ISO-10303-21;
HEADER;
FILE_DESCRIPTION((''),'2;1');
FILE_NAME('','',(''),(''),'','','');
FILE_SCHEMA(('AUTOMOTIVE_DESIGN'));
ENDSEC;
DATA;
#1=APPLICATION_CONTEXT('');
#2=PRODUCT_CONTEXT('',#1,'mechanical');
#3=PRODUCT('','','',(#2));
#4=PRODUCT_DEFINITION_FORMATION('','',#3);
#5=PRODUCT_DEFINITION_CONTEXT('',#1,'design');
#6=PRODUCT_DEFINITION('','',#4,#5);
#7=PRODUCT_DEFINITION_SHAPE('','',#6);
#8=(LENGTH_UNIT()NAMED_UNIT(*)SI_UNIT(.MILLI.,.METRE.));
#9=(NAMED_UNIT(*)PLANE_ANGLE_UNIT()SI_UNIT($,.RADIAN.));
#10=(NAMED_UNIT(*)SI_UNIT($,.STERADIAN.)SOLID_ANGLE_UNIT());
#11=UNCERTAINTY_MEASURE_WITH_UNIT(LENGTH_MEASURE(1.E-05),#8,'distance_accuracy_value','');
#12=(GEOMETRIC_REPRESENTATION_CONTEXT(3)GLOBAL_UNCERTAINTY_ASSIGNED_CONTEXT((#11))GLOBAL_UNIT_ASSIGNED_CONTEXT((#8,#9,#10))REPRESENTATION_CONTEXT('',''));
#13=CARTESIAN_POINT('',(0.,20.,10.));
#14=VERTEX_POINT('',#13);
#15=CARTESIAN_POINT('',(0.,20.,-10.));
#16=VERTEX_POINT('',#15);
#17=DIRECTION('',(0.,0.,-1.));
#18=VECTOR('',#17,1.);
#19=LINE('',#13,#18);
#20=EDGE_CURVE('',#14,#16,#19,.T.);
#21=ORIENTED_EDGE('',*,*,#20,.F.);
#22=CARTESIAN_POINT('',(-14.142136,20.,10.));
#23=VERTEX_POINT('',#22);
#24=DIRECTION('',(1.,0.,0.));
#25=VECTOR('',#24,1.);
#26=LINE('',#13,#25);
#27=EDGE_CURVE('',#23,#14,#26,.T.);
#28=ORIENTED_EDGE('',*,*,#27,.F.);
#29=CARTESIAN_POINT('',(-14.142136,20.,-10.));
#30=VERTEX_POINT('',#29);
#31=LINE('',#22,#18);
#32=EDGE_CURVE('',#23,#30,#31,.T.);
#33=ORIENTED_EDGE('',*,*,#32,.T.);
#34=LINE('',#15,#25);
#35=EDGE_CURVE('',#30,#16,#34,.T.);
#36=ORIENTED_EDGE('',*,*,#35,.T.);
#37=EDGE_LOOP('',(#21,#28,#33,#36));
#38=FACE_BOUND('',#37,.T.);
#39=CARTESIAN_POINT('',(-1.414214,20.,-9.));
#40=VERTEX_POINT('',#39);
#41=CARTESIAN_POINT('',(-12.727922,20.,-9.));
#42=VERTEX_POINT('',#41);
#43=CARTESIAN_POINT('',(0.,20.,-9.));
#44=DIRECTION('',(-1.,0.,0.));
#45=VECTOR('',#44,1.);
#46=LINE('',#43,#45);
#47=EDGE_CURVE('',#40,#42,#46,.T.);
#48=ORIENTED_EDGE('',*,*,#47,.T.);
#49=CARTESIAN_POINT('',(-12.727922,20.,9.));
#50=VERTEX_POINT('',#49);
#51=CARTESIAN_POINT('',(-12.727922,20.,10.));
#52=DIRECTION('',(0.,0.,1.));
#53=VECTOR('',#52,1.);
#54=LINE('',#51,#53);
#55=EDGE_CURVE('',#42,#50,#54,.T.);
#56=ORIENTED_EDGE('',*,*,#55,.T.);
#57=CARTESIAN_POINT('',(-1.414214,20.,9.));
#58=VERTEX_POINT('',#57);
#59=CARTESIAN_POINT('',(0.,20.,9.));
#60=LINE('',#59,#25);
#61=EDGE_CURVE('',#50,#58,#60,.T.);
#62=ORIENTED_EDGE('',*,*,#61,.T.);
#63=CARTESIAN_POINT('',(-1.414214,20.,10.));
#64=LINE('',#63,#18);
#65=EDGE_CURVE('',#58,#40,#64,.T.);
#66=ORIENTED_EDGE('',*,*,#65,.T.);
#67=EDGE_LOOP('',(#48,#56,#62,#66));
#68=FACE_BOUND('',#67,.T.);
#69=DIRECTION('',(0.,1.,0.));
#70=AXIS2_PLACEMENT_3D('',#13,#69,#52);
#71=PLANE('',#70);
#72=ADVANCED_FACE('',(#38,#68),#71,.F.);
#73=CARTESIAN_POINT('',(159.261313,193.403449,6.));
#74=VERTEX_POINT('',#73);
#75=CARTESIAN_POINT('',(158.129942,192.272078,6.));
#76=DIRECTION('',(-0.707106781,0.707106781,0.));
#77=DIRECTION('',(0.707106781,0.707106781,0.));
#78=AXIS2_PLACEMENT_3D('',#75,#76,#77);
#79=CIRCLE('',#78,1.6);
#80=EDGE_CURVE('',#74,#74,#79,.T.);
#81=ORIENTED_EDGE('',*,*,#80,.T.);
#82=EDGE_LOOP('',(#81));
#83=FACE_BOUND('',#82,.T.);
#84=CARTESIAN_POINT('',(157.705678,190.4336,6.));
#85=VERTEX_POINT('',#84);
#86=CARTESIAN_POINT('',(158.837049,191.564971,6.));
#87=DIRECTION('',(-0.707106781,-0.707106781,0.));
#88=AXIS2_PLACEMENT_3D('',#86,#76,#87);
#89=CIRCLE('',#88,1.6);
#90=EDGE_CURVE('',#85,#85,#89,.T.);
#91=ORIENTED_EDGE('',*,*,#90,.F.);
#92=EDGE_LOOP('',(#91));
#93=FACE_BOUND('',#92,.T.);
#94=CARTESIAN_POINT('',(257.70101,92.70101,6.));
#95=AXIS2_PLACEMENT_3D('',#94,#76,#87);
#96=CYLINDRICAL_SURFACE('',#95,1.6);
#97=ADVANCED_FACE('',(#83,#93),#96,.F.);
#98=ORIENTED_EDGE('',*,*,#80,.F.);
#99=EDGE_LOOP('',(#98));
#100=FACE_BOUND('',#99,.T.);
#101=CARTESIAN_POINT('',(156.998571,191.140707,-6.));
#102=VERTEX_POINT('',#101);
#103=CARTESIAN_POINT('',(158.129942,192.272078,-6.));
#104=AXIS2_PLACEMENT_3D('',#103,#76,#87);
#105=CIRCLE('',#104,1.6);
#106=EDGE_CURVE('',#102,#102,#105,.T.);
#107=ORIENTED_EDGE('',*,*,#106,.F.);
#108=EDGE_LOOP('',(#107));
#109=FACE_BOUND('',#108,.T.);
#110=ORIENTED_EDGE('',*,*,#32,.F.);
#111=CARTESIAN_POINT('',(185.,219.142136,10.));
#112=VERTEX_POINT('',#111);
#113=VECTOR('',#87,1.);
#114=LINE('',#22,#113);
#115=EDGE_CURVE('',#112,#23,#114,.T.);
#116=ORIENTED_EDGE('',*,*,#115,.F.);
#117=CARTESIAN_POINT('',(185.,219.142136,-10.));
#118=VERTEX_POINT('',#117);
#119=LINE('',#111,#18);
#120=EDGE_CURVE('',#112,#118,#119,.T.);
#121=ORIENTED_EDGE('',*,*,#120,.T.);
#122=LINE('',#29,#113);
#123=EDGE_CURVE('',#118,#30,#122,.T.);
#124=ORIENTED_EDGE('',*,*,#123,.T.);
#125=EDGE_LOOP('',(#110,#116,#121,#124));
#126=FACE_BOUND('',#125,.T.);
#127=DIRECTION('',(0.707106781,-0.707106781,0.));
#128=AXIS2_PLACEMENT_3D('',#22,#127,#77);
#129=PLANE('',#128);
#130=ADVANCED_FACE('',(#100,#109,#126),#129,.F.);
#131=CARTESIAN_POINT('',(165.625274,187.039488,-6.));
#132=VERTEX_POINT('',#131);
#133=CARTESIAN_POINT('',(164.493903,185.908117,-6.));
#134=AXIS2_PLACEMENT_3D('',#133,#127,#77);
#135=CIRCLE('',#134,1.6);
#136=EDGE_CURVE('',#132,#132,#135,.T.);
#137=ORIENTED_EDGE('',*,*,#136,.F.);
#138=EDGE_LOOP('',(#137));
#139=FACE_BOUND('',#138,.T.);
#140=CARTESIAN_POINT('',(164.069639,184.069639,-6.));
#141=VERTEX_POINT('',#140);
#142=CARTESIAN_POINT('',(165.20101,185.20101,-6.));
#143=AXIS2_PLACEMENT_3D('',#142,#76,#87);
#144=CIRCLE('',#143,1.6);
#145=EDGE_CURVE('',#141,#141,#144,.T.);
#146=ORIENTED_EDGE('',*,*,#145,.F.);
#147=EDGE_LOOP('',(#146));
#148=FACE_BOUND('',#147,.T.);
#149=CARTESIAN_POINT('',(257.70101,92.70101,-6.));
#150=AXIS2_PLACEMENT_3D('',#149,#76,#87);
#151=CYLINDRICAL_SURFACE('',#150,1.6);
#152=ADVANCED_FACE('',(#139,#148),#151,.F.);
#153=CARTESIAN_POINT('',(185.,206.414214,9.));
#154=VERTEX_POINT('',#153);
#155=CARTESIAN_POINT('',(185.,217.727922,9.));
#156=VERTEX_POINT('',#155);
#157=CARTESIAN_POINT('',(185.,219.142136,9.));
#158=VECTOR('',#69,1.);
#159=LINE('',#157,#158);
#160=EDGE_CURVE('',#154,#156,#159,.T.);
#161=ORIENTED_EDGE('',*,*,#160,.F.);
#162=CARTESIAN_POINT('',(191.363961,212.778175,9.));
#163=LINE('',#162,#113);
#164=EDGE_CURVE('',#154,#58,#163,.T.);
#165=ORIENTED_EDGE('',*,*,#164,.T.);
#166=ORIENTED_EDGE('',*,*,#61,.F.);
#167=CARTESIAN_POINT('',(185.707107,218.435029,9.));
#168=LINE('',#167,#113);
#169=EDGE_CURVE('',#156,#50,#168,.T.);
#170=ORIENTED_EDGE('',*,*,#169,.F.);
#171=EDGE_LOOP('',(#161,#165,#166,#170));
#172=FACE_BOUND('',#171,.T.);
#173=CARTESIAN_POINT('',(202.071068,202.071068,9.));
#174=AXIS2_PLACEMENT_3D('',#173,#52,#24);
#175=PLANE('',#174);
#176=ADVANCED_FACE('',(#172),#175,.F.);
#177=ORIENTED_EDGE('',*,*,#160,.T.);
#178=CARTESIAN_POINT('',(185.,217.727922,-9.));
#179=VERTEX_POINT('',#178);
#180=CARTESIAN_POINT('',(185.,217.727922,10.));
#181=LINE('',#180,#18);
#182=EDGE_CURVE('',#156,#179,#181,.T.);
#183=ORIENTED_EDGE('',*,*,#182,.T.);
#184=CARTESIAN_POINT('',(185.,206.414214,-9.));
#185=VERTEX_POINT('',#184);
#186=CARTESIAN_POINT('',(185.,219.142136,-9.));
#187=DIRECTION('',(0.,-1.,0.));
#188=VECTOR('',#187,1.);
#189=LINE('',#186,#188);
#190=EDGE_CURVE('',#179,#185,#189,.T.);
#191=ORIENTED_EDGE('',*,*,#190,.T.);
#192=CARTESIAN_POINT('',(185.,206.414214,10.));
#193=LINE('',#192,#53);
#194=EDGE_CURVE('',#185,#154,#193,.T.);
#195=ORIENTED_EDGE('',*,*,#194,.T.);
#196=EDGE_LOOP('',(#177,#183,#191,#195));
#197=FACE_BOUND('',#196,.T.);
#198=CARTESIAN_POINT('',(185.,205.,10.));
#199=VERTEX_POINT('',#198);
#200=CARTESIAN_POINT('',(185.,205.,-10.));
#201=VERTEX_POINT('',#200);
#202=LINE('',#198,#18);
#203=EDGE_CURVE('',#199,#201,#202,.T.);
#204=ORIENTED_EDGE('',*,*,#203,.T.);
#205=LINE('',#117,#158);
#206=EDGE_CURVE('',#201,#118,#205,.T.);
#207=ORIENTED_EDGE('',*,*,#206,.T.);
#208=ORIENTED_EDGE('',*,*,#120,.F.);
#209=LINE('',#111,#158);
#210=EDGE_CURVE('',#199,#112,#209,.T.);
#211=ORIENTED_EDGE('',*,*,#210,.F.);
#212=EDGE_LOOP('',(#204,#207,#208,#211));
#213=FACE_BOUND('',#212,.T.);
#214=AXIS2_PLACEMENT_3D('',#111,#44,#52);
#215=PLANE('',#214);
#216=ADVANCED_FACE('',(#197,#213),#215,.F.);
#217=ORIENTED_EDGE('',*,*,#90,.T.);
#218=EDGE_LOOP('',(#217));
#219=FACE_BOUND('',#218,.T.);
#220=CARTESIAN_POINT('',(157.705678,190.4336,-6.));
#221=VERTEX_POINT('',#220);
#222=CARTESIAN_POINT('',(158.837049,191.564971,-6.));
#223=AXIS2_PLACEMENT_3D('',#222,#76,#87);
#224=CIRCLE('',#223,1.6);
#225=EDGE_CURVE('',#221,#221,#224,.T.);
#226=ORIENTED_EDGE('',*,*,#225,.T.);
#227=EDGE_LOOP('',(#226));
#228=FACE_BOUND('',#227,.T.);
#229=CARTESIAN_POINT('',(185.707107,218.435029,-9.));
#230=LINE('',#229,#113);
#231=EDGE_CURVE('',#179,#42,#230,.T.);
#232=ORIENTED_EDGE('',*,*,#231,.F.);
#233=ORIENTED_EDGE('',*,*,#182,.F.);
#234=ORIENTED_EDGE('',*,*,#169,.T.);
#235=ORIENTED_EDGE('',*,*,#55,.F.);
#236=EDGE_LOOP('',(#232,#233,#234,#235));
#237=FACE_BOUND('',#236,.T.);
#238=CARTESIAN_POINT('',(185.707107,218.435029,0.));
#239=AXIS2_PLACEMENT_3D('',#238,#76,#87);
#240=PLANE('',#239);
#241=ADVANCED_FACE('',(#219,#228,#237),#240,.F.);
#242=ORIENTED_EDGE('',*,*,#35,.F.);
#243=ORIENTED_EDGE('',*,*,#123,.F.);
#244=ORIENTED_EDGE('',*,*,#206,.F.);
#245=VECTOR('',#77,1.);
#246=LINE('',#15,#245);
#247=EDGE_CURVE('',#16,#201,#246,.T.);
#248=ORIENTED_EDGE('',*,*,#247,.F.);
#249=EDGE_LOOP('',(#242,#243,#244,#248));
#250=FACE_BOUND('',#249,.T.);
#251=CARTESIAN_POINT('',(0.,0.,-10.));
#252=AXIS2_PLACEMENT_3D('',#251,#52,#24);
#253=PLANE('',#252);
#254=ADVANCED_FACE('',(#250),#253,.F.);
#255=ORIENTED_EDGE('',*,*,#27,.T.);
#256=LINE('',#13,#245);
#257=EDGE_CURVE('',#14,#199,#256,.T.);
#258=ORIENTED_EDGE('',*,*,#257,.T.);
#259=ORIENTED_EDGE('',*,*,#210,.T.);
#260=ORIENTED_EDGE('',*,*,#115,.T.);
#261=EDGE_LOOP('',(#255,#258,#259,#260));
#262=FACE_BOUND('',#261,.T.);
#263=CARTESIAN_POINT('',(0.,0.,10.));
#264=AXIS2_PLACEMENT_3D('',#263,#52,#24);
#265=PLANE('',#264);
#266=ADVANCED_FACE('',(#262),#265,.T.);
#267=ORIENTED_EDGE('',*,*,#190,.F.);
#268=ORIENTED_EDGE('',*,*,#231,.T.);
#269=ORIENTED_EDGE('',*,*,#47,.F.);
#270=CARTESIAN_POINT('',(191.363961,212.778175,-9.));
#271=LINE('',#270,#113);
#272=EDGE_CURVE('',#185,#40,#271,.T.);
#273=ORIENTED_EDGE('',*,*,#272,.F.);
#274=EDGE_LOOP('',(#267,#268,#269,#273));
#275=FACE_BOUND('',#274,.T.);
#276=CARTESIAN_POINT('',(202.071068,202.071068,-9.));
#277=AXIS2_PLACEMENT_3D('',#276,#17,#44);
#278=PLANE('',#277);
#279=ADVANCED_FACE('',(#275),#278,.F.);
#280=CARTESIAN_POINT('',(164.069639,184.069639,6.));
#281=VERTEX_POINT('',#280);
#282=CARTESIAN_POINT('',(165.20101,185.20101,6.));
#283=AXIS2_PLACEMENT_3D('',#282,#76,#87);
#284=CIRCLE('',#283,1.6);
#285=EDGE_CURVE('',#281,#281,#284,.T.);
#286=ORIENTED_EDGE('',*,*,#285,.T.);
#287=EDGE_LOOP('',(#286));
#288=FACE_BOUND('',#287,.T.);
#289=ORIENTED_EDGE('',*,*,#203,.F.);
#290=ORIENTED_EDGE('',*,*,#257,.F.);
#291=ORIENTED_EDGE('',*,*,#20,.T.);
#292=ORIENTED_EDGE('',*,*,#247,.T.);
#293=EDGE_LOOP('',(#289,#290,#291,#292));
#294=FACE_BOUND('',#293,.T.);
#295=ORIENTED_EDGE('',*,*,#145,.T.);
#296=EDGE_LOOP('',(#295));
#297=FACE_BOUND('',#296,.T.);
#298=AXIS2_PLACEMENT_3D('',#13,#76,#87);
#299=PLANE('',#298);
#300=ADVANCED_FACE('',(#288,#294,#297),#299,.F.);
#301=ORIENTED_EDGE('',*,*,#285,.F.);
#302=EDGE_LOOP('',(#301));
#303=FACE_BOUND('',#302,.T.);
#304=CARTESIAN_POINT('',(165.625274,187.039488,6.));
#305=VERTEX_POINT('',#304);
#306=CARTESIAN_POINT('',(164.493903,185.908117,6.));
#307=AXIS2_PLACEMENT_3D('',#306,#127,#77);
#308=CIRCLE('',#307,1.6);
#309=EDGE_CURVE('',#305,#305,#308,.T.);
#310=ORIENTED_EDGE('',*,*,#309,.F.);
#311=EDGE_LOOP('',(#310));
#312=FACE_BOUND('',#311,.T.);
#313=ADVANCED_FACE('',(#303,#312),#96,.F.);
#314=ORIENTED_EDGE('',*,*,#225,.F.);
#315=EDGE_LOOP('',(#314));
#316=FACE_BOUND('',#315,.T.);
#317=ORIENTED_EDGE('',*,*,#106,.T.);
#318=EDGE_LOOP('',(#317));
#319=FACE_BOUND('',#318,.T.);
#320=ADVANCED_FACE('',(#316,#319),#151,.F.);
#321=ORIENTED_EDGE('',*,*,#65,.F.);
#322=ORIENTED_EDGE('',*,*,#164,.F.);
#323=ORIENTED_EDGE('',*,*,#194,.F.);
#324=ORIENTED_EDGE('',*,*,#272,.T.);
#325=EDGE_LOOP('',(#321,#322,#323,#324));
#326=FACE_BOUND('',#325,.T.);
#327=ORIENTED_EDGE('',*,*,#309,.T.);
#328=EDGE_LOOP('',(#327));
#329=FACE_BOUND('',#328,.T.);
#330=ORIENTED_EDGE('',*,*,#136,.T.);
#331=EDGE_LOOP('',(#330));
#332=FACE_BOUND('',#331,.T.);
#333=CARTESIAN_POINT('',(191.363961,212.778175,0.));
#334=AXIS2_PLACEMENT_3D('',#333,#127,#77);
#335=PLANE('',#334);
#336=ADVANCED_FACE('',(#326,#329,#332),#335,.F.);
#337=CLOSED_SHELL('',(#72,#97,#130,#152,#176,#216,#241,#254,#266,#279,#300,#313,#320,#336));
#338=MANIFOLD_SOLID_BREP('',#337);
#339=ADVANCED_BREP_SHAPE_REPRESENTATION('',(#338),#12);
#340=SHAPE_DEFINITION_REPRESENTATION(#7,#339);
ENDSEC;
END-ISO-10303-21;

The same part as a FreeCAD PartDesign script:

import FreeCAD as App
import Part
import Sketcher
from FreeCAD import Vector


def add_polygon(sketch, points):
    """Adds a closed chain of lines whose ends are joined by coincident constraints."""
    first, n = sketch.GeometryCount, len(points)
    for a, b in zip(points, points[1:] + points[:1]):
        sketch.addGeometry(Part.LineSegment(App.Vector(*a, 0), App.Vector(*b, 0)), False)
    for i in range(n):
        sketch.addConstraint(Sketcher.Constraint("Coincident", first + i, 2, first + (i + 1) % n, 1))

doc = App.newDocument("Part")
body = doc.addObject("PartDesign::Body", "Body")

# Sketch on XY plane
sketch1 = body.newObject("Sketcher::SketchObject", "Sketch")
sketch1.AttachmentSupport = (doc.getObject("XY_Plane"), [""])
sketch1.MapMode = "FlatFace"
add_polygon(sketch1, [(0, 20), (185, 205), (185, 219), (-14, 20)])  # lines 0-3
sketch1.addConstraint([
    Sketcher.Constraint("Vertical", 1),
    Sketcher.Constraint("Horizontal", 3),
    Sketcher.Constraint("PointOnObject", 3, 2, -2),
    Sketcher.Constraint("Parallel", 0, 2),
    Sketcher.Constraint("Equal", 3, 1),
    Sketcher.Constraint("DistanceX", -1, 1, 0, 2, 185.0),
    Sketcher.Constraint("DistanceY", -1, 1, 0, 2, 205.0),
    Sketcher.Constraint("Distance", 2, 281.629509),
])
pad1 = body.newObject("PartDesign::Pad", "Pad")
pad1.Profile = sketch1
pad1.Length = 20
pad1.Midplane = True

# Sketch on an angled plane
sketch2 = body.newObject("Sketcher::SketchObject", "Sketch001")
sketch2.Placement = App.Placement(Vector(10, 10, 0), App.Rotation(Vector(0, 0, -1), Vector(0.707106781, -0.707106781, 0), Vector(-0.707106781, -0.707106781, 0), "ZXY"))
add_polygon(sketch2, [(-9, -15), (-9, -23), (9, -23), (9, -15)])  # lines 0-3
sketch2.addConstraint([
    Sketcher.Constraint("Vertical", 0),
    Sketcher.Constraint("Horizontal", 1),
    Sketcher.Constraint("Vertical", 2),
    Sketcher.Constraint("Horizontal", 3),
    Sketcher.Constraint("DistanceX", 1, 1, 1, 2, 18.0),
    Sketcher.Constraint("DistanceY", 0, 2, 0, 1, 8.0),
    Sketcher.Constraint("DistanceX", 0, 2, -1, 1, 9.0),
    Sketcher.Constraint("DistanceY", 0, 2, -1, 1, 23.142136),
])
pocket1 = body.newObject("PartDesign::Pocket", "Pocket")
pocket1.Profile = sketch2
pocket1.Type = "ThroughAll"
pocket1.Midplane = True

# Sketch on an angled plane
sketch3 = body.newObject("Sketcher::SketchObject", "Sketch002")
sketch3.Placement = App.Placement(Vector(-17.071068, 17.071068, 0), App.Rotation(Vector(0.707106781, 0.707106781, 0), Vector(0, 0, -0.999999999), Vector(-0.707106781, 0.707106781, 0), "ZXY"))
sketch3.addGeometry([
    Part.Circle(Vector(247.8, 6, 0), Vector(0, 0, 1), 1.6),
    Part.Circle(Vector(247.8, -6, 0), Vector(0, 0, 1), 1.6),
], False)
sketch3.addConstraint([
    Sketcher.Constraint("Equal", 0, 1),
    Sketcher.Constraint("Symmetric", 0, 3, 1, 3, -1),
    Sketcher.Constraint("Diameter", 0, 3.2),
    Sketcher.Constraint("DistanceY", -1, 1, 0, 3, 6.0),
    Sketcher.Constraint("DistanceX", -1, 1, 0, 3, 247.771645),
])
pocket2 = body.newObject("PartDesign::Pocket", "Pocket001")
pocket2.Profile = sketch3
pocket2.Type = "ThroughAll"

doc.recompute()
